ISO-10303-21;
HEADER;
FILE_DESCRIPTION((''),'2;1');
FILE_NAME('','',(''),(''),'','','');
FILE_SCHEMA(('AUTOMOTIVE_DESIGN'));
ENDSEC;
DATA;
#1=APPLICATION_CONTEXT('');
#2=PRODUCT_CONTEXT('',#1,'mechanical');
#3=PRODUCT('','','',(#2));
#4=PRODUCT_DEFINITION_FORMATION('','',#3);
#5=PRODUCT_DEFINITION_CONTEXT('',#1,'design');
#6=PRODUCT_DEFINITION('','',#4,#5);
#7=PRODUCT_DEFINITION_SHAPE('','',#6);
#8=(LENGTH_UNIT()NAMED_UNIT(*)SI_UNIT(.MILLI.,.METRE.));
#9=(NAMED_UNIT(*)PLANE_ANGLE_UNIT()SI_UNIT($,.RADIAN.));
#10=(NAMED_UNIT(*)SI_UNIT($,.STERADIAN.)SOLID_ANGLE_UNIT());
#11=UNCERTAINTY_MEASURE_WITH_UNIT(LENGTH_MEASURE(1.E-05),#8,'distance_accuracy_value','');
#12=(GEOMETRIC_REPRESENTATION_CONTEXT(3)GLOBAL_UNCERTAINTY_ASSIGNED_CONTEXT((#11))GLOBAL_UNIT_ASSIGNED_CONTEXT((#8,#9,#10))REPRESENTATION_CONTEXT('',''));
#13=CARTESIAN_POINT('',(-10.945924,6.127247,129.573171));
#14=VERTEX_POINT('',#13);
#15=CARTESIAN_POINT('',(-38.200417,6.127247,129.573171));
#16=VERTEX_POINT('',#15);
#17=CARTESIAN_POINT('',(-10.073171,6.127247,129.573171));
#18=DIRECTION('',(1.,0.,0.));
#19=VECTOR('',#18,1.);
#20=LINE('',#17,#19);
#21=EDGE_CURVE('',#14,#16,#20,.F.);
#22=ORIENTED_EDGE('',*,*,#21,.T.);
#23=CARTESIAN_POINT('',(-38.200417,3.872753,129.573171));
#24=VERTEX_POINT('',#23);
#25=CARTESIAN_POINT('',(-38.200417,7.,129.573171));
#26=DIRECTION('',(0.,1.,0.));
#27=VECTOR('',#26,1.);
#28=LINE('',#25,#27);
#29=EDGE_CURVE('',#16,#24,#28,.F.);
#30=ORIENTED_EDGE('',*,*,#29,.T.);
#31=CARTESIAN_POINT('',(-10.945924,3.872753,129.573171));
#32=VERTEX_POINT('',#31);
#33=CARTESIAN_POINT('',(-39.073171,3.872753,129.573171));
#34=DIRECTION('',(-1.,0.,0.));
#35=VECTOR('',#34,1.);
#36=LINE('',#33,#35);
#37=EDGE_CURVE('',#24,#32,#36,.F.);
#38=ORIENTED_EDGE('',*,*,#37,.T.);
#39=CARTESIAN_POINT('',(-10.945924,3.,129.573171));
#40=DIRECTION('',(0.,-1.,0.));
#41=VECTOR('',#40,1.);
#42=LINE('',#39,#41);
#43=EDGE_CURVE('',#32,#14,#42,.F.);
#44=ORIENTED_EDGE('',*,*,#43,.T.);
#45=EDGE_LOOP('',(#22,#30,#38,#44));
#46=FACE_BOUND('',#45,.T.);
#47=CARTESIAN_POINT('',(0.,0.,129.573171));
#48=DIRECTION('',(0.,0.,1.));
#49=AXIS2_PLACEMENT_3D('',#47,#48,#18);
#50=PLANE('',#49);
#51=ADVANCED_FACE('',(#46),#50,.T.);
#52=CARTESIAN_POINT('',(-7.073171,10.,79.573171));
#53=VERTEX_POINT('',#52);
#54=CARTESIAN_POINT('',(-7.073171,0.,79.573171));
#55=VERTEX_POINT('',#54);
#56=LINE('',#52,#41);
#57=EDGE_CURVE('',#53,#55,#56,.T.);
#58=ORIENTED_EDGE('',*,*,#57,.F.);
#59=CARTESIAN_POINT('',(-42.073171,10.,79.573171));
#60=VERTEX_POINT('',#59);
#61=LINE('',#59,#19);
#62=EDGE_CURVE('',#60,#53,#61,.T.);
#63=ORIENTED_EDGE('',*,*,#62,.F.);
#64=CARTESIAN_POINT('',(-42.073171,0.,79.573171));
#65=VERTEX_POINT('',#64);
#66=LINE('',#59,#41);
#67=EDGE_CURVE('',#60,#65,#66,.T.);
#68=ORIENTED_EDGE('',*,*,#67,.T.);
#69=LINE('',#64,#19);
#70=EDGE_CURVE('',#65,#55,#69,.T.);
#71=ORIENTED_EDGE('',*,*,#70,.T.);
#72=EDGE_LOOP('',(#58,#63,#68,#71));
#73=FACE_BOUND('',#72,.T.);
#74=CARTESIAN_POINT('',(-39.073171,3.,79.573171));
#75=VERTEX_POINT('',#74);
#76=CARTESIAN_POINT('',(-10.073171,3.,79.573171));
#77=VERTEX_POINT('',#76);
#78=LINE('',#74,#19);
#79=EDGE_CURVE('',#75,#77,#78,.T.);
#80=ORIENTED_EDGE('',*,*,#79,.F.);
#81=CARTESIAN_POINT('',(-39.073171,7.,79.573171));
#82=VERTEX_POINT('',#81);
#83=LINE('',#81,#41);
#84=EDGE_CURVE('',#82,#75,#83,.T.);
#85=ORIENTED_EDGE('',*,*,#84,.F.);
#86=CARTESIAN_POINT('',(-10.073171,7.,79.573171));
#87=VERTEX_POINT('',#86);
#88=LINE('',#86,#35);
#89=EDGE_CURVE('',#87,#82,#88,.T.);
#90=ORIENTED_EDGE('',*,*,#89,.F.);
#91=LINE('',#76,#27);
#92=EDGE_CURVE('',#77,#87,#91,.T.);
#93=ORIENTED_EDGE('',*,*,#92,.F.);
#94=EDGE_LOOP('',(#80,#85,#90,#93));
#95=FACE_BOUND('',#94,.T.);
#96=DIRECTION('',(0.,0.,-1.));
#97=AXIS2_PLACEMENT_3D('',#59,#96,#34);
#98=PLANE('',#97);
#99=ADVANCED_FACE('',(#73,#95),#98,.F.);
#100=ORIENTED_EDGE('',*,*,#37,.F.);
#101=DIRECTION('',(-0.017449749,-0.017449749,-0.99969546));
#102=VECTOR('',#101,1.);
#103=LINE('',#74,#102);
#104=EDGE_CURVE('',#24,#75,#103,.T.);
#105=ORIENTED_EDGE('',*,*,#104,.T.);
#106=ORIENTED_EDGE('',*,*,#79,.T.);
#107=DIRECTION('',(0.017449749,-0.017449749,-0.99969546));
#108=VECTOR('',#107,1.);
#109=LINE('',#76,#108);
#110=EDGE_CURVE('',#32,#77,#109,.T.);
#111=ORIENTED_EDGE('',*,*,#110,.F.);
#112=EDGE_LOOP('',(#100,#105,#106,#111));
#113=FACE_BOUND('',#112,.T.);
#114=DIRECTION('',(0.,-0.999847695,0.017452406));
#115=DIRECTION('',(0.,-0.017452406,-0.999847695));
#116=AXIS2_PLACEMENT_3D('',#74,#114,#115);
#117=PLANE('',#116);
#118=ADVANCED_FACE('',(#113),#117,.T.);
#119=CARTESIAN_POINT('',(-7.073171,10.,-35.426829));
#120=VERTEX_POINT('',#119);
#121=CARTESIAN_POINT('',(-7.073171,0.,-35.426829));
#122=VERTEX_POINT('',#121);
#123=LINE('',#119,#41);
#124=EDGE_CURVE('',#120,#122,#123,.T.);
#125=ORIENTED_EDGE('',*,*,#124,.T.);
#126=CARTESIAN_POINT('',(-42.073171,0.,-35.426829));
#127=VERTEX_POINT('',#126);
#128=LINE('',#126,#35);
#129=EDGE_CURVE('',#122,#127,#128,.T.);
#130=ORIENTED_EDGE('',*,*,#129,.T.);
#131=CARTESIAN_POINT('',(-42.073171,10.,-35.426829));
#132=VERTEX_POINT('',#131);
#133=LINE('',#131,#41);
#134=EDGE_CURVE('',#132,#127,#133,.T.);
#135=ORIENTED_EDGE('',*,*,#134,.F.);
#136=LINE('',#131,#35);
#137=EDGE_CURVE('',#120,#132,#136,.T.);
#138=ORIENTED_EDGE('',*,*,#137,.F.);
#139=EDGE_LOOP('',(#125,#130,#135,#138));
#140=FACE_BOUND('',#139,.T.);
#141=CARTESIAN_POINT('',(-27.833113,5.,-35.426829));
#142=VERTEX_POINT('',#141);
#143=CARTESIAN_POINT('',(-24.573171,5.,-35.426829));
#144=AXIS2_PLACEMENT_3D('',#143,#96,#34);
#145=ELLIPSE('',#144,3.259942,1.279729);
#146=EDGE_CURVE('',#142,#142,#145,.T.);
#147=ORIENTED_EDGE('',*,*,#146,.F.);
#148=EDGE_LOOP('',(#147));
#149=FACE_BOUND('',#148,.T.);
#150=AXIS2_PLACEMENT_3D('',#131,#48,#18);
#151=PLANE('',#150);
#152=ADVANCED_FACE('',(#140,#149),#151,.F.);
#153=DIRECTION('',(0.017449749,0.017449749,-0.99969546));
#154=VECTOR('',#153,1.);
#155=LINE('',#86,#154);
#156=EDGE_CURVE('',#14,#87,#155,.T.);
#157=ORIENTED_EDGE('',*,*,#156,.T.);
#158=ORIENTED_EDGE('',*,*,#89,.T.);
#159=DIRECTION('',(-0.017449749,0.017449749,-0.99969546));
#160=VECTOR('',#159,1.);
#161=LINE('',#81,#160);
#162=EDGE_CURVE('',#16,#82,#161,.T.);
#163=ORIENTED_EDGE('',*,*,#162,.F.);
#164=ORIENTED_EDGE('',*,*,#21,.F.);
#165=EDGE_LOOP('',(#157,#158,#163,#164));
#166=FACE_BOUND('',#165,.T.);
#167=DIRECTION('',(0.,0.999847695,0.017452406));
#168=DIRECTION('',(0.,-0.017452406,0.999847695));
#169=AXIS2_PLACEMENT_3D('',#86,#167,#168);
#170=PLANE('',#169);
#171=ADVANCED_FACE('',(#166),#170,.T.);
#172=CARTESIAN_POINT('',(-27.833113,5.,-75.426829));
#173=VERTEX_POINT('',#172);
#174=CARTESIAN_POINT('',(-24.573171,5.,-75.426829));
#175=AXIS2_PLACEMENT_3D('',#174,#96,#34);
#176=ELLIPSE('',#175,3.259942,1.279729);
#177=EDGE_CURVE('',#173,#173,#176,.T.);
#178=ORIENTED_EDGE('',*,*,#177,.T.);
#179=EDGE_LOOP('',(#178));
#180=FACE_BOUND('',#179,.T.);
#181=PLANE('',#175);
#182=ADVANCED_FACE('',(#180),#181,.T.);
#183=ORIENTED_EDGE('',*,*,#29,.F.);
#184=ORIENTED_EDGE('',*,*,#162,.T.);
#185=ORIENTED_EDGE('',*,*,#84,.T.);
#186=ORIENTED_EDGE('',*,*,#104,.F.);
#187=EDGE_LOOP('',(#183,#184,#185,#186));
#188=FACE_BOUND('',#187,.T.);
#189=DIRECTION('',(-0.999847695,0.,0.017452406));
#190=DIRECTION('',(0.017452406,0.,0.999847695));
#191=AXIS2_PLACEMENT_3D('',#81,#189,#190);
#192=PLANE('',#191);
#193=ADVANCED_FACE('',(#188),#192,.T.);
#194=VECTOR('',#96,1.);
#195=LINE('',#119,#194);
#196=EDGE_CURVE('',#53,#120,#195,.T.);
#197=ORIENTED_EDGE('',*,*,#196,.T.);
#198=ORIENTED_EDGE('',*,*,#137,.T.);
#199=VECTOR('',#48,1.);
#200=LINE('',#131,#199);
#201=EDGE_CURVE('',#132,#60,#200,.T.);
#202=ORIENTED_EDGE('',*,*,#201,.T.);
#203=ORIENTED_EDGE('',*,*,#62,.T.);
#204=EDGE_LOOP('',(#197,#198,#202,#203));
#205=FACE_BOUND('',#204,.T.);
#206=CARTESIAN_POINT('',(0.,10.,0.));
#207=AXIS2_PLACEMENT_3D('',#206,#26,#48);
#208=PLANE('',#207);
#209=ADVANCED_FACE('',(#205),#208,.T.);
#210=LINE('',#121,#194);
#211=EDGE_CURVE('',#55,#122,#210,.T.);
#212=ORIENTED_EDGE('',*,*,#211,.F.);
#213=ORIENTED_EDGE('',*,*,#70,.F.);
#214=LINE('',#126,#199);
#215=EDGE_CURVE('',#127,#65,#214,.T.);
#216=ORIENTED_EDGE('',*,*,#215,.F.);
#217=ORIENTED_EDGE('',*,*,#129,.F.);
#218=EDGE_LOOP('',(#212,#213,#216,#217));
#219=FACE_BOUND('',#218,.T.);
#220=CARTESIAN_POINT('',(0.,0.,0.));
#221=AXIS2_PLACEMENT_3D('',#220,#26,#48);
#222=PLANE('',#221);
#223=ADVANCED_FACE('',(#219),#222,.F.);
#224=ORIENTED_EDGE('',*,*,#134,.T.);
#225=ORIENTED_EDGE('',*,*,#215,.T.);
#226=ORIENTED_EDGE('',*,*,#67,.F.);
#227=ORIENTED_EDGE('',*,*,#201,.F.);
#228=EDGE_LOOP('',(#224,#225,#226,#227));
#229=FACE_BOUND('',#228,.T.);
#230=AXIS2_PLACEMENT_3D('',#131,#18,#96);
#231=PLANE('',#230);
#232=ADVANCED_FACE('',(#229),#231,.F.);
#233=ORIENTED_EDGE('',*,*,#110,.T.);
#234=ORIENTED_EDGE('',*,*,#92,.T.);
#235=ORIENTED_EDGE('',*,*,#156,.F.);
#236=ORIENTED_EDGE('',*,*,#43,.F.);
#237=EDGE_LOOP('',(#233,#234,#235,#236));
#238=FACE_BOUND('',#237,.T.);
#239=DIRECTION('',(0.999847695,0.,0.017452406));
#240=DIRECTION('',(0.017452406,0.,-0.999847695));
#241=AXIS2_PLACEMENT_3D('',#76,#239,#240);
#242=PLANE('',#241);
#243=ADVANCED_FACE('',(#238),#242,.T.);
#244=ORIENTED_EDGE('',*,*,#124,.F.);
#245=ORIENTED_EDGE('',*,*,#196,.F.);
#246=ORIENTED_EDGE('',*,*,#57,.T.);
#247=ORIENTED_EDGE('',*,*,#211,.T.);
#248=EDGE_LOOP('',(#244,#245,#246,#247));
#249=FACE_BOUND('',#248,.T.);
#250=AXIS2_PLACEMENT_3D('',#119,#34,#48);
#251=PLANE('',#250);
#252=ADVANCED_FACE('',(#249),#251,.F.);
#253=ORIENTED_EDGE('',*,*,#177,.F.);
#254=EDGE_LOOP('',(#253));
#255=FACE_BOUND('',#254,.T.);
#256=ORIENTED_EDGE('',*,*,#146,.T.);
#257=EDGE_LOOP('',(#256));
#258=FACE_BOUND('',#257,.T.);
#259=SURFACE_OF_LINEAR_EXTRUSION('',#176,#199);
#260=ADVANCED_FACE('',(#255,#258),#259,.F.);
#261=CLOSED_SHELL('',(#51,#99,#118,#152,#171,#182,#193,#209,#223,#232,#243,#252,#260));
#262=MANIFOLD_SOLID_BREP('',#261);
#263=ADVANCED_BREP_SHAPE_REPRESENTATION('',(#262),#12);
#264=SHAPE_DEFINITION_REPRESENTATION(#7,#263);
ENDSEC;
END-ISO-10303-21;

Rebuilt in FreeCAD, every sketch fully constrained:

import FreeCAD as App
import Part
import Sketcher
from FreeCAD import Vector
Q = App.Units.Quantity


def add_polygon(sketch, points):
    """Adds a closed chain of lines whose ends are joined by coincident constraints."""
    first, n = sketch.GeometryCount, len(points)
    for a, b in zip(points, points[1:] + points[:1]):
        sketch.addGeometry(Part.LineSegment(App.Vector(*a, 0), App.Vector(*b, 0)), False)
    for i in range(n):
        sketch.addConstraint(Sketcher.Constraint("Coincident", first + i, 2, first + (i + 1) % n, 1))

doc = App.newDocument("Part")
body = doc.addObject("PartDesign::Body", "Body")

sketch1 = body.newObject("Sketcher::SketchObject", "Sketch")
sketch1.AttachmentSupport = (doc.getObject("XZ_Plane"), [""])
sketch1.MapMode = "FlatFace"
add_polygon(sketch1, [(-42.073171, -35.426829), (-42.073171, 79.573171), (-7.073171, 79.573171), (-7.073171, -35.426829)])
sketch1.addConstraint(Sketcher.Constraint("Vertical", 0))
sketch1.addConstraint(Sketcher.Constraint("Horizontal", 1))
sketch1.addConstraint(Sketcher.Constraint("Vertical", 2))
sketch1.addConstraint(Sketcher.Constraint("Horizontal", 3))
sketch1.addConstraint(Sketcher.Constraint("DistanceX", 1, 1, 1, 2, Q("35 mm")))
sketch1.addConstraint(Sketcher.Constraint("DistanceY", 0, 1, 0, 2, Q("115 mm")))
sketch1.addConstraint(Sketcher.Constraint("DistanceX", 0, 2, -1, 1, Q("42.073171 mm")))
sketch1.addConstraint(Sketcher.Constraint("DistanceY", -1, 1, 0, 2, Q("79.573171 mm")))
pad1 = body.newObject("PartDesign::Pad", "Pad")
pad1.Profile = sketch1
pad1.Length = 10
pad1.Reversed = True

sketch2 = body.newObject("Sketcher::SketchObject", "Sketch001")
sketch2.AttachmentSupport = (doc.getObject("XY_Plane"), [""])
sketch2.MapMode = "FlatFace"
sketch2.AttachmentOffset = App.Placement(Vector(0, 0, 79.573171), App.Rotation())
add_polygon(sketch2, [(-39.073171, 7), (-39.073171, 3), (-10.073171, 3), (-10.073171, 7)])
sketch2.addConstraint(Sketcher.Constraint("Vertical", 0))
sketch2.addConstraint(Sketcher.Constraint("Horizontal", 1))
sketch2.addConstraint(Sketcher.Constraint("Vertical", 2))
sketch2.addConstraint(Sketcher.Constraint("Horizontal", 3))
sketch2.addConstraint(Sketcher.Constraint("DistanceX", 1, 1, 1, 2, Q("29 mm")))
sketch2.addConstraint(Sketcher.Constraint("DistanceY", 0, 2, 0, 1, Q("4 mm")))
sketch2.addConstraint(Sketcher.Constraint("DistanceY", -1, 1, 0, 2, Q("3 mm")))
sketch2.addConstraint(Sketcher.Constraint("DistanceX", 0, 2, -1, 1, Q("39.073171 mm")))
pad2 = body.newObject("PartDesign::Pad", "Pad001")
pad2.Profile = sketch2
pad2.Length = 50
pad2.TaperAngle = -1

sketch3 = body.newObject("Sketcher::SketchObject", "Sketch002")
sketch3.AttachmentSupport = (doc.getObject("XY_Plane"), [""])
sketch3.MapMode = "FlatFace"
sketch3.AttachmentOffset = App.Placement(Vector(0, 0, -35.426829), App.Rotation())
sketch3.addGeometry(Part.Ellipse(Vector(-27.833113, 5, 0), Vector(-24.573171, 3.720271, 0), Vector(-24.573171, 5, 0)), False)
sketch3.addConstraint(Sketcher.Constraint("Block", 0))
pad3 = body.newObject("PartDesign::Pad", "Pad002")
pad3.Profile = sketch3
pad3.Length = 40
pad3.Reversed = True

doc.recompute()
